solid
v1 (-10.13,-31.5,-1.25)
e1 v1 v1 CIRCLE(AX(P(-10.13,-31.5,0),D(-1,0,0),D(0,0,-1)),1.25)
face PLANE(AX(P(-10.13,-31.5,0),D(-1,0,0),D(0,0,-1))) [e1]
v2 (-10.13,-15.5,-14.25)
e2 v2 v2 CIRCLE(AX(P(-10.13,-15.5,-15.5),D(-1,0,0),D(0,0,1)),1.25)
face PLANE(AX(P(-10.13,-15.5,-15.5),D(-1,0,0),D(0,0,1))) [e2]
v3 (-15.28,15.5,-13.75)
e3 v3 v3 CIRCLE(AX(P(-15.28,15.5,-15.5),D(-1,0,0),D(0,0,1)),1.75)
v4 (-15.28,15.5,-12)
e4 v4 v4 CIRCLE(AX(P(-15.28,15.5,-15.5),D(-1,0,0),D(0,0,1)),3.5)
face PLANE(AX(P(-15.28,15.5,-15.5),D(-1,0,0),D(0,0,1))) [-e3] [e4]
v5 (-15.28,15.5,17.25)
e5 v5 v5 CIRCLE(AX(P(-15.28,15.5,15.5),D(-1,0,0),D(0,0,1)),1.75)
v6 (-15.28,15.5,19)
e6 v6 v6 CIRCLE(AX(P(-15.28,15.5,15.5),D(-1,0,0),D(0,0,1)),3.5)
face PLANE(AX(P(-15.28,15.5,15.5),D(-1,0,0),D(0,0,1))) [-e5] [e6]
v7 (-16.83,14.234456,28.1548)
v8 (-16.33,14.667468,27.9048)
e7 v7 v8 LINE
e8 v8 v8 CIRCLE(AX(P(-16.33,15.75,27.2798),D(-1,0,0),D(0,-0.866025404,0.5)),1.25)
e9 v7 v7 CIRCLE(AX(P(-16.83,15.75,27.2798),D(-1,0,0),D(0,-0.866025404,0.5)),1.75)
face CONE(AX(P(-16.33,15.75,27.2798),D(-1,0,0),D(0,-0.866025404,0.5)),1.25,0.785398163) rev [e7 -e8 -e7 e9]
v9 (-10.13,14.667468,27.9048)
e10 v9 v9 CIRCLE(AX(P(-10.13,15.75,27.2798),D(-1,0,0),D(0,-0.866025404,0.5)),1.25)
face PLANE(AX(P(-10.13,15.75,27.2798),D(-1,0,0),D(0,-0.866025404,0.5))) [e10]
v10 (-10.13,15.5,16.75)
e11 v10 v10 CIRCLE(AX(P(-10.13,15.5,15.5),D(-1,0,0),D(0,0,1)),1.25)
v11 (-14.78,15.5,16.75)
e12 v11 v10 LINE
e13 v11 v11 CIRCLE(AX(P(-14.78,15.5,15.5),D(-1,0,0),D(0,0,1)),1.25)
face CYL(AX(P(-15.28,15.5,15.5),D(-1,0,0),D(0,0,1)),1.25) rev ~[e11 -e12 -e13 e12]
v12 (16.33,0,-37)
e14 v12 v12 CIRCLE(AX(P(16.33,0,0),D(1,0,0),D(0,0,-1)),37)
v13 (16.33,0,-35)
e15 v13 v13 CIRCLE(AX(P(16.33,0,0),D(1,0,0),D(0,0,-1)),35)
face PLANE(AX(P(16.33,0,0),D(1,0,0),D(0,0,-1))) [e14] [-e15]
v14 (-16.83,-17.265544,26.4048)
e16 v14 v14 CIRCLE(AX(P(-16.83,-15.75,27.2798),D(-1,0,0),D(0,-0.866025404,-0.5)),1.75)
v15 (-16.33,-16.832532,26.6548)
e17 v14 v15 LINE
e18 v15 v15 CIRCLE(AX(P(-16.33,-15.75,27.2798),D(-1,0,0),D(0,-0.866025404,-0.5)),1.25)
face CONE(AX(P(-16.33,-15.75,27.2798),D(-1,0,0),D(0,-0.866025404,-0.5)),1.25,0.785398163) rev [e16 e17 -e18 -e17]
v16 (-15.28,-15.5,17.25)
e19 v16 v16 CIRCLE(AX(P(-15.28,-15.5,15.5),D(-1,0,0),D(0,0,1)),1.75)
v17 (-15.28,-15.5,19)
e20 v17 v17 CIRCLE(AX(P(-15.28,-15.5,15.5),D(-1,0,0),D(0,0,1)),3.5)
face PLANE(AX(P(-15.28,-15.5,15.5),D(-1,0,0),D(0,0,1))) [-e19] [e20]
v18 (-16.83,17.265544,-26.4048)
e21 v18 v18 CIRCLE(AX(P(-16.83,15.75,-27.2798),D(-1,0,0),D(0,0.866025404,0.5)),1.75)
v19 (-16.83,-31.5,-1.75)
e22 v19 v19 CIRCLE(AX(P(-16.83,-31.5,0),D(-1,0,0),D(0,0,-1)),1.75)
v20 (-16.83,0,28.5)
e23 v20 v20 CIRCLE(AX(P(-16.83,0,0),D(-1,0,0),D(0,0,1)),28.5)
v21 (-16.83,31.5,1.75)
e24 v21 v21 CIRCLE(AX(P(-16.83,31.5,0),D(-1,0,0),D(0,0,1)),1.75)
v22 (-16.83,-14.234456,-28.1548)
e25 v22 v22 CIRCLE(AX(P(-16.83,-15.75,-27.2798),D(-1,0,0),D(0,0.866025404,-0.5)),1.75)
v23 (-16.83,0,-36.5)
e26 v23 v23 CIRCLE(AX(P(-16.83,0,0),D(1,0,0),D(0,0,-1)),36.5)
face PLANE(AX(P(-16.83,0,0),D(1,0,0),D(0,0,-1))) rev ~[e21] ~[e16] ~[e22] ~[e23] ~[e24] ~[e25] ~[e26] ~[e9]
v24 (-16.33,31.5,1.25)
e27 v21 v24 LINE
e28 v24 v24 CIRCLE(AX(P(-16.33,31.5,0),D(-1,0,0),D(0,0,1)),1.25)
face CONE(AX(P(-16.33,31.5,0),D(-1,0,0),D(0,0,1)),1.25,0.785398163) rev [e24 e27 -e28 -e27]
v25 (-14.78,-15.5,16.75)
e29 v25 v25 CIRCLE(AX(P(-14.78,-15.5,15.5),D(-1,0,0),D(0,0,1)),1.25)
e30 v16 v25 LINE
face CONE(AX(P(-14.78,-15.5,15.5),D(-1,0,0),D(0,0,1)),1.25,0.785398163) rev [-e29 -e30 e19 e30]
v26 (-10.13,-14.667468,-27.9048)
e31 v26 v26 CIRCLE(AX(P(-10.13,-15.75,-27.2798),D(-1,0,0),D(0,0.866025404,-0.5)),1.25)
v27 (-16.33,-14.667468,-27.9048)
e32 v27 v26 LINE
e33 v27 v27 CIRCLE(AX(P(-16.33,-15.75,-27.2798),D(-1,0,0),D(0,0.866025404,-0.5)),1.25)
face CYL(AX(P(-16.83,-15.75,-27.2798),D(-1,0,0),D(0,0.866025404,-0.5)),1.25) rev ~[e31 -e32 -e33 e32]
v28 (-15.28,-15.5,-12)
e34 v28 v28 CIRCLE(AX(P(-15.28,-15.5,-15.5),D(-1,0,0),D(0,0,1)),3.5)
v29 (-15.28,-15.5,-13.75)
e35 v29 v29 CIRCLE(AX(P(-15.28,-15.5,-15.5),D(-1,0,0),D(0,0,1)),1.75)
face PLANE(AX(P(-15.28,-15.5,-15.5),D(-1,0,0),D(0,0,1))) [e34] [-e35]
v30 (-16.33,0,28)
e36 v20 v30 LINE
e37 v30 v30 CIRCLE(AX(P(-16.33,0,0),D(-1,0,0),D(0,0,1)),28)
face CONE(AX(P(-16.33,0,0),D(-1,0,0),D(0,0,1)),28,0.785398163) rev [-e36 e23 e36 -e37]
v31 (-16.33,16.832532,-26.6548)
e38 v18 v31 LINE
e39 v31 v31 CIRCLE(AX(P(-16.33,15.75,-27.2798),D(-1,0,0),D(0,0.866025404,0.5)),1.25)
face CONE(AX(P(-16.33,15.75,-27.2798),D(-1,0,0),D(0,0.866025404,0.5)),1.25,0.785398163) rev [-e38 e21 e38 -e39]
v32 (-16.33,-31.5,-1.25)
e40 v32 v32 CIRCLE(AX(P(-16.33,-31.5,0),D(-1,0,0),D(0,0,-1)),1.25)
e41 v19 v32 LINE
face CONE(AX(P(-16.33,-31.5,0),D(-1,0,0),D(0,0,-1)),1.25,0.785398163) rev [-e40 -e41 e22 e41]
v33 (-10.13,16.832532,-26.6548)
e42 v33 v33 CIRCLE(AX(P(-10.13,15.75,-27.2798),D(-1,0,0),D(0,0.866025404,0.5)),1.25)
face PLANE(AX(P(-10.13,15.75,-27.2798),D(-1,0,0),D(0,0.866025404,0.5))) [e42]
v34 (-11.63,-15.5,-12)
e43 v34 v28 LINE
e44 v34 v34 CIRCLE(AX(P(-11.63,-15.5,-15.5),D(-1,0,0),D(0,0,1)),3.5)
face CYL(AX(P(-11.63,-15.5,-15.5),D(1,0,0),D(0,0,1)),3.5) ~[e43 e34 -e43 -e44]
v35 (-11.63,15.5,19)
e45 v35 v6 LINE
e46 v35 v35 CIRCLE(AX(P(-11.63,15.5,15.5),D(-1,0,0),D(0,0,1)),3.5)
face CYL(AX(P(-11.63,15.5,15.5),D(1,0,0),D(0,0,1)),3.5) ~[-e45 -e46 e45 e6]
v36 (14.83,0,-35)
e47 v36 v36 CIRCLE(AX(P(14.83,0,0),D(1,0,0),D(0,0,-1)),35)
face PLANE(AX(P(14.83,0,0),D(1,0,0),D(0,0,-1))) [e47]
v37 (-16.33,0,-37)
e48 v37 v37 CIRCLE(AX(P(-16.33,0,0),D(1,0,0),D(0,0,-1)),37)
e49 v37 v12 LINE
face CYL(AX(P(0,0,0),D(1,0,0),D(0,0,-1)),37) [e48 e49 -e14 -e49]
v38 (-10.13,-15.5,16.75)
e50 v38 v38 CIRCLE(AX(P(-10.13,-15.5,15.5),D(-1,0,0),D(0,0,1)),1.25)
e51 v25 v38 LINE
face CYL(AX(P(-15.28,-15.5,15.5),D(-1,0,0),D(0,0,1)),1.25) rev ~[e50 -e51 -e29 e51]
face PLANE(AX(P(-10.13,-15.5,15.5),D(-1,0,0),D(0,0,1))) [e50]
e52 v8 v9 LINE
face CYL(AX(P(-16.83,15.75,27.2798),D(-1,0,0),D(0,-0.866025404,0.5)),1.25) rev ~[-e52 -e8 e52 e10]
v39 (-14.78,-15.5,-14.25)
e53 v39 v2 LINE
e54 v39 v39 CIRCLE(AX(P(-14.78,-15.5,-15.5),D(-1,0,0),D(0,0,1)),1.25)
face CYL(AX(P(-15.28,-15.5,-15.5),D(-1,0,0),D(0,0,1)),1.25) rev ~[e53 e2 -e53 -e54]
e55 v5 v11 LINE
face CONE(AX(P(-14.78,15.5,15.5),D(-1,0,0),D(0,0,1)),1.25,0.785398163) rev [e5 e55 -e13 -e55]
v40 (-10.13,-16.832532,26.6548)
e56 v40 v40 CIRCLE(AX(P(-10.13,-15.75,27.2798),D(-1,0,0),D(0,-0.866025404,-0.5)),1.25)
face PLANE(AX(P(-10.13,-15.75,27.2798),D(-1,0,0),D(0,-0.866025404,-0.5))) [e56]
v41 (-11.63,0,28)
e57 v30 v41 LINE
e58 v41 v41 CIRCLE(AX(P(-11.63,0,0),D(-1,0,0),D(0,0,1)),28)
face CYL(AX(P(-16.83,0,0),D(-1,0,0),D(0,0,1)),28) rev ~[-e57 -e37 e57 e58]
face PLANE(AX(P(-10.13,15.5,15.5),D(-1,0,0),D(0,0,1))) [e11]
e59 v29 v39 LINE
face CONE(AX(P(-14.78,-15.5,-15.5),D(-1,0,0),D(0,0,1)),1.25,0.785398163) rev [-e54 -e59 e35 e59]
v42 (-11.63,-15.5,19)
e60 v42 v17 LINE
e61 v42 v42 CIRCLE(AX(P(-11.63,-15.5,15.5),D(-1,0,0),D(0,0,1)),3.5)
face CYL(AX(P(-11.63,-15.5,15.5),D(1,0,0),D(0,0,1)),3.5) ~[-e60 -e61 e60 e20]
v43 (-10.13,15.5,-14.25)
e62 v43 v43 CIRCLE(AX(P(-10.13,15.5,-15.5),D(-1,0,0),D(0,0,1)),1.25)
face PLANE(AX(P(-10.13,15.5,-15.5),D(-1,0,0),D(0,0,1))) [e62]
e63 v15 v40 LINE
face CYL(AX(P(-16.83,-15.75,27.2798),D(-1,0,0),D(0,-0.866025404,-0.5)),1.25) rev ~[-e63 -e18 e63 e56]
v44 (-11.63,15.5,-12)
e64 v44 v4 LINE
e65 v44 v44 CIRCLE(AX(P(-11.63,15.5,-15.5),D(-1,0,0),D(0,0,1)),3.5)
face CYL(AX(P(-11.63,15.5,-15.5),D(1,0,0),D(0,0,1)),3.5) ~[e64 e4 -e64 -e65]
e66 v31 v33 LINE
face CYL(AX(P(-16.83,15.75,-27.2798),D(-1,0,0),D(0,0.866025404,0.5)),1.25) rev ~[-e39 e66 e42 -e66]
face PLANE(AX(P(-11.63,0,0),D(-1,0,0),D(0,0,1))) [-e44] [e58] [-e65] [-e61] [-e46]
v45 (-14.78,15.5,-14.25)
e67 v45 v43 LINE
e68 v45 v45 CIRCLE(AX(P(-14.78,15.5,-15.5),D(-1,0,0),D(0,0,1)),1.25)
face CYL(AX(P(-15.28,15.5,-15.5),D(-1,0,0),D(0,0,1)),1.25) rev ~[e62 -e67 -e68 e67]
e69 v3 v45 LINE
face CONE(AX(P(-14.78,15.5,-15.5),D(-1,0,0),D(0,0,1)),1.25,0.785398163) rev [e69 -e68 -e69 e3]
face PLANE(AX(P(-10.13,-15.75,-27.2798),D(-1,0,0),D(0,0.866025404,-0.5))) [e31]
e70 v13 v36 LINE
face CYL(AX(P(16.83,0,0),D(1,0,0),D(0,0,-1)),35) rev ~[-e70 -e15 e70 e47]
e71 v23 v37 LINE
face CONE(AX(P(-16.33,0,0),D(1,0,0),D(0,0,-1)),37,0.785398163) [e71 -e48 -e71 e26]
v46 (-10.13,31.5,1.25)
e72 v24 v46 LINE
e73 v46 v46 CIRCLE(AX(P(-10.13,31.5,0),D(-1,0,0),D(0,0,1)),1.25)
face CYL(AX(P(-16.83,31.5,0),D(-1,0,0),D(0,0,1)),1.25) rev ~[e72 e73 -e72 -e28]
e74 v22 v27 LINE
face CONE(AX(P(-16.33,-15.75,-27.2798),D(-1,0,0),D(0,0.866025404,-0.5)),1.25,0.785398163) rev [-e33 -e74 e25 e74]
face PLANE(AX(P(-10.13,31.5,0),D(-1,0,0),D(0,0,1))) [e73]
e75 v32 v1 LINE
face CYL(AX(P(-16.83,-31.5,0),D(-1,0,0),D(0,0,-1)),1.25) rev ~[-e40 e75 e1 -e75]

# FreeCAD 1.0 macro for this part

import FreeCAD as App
import Part
import Sketcher


def edges_at(feature, points):
    """Names of the edges that pass closest to the given points."""
    edges = feature.Shape.Edges
    near = lambda p: min(range(len(edges)), key=lambda i: edges[i].distToShape(Part.Vertex(*p))[0])
    return sorted({f"Edge{near(p) + 1}" for p in points})

doc = App.newDocument("Part")
body = doc.addObject("PartDesign::Body", "Body")

# Sketch on YZ plane
sketch1 = body.newObject("Sketcher::SketchObject", "Sketch")
sketch1.AttachmentSupport = (doc.getObject("YZ_Plane"), [""])
sketch1.MapMode = "FlatFace"
sketch1.addGeometry(Part.Circle(App.Vector(0, 0, 0), App.Vector(0, 0, 1), 37), False)
sketch1.addConstraint([
    Sketcher.Constraint("Coincident", 0, 3, -1, 1),
    Sketcher.Constraint("Diameter", 0, 74.0),
])
pad1 = body.newObject("PartDesign::Pad", "Pad")
pad1.Profile = sketch1
pad1.Length = 33.66
pad1.Midplane = True

# Sketch on YZ plane
sketch2 = body.newObject("Sketcher::SketchObject", "Sketch001")
sketch2.AttachmentSupport = (doc.getObject("YZ_Plane"), [""])
sketch2.MapMode = "FlatFace"
sketch2.AttachmentOffset = App.Placement(App.Vector(0, 0, -16.83), App.Rotation())
sketch2.addGeometry(Part.Circle(App.Vector(31.5, 0, 0), App.Vector(0, 0, 1), 1.2), False)
sketch2.addConstraint([
    Sketcher.Constraint("PointOnObject", 0, 3, -1),
    Sketcher.Constraint("Diameter", 0, 2.5),
    Sketcher.Constraint("DistanceX", -1, 1, 0, 3, 31.5),
])
pocket1 = body.newObject("PartDesign::Pocket", "Pocket")
pocket1.Profile = sketch2
pocket1.Length = 6.7
pocket1.Reversed = True
doc.recompute()

chamfer = body.newObject("PartDesign::Chamfer", "Chamfer")
chamfer.Base = (pocket1, edges_at(pocket1, [(-16.83, 31.5, -1.25)]))
chamfer.Size = 0.5
doc.recompute()

polarpattern = body.newObject("PartDesign::PolarPattern", "PolarPattern")
polarpattern.Originals = [pocket1]
polarpattern.Axis = (doc.getObject("X_Axis"), [""])
polarpattern.Angle = 360
polarpattern.Occurrences = 6
body.Tip = polarpattern
doc.recompute()

chamfer2 = body.newObject("PartDesign::Chamfer", "Chamfer001")
chamfer2.Base = (polarpattern, edges_at(polarpattern, [
    (-16.83, 16.833, 26.655),
    (-16.83, -14.667, 27.905),
    (-16.83, -31.5, 1.25),
    (-16.83, -16.833, -26.655),
    (-16.83, 14.667, -27.905),
]))
chamfer2.Size = 0.5

# Sketch on YZ plane
sketch3 = body.newObject("Sketcher::SketchObject", "Sketch002")
sketch3.AttachmentSupport = (doc.getObject("YZ_Plane"), [""])
sketch3.MapMode = "FlatFace"
sketch3.AttachmentOffset = App.Placement(App.Vector(0, 0, -16.83), App.Rotation())
sketch3.addGeometry(Part.Circle(App.Vector(0, 0, 0), App.Vector(0, 0, 1), 28), False)
sketch3.addConstraint([
    Sketcher.Constraint("Coincident", 0, 3, -1, 1),
    Sketcher.Constraint("Diameter", 0, 56.0),
])
pocket2 = body.newObject("PartDesign::Pocket", "Pocket001")
pocket2.Profile = sketch3
pocket2.Length = 5.2
pocket2.Reversed = True

# Sketch on YZ plane
sketch4 = body.newObject("Sketcher::SketchObject", "Sketch003")
sketch4.AttachmentSupport = (doc.getObject("YZ_Plane"), [""])
sketch4.MapMode = "FlatFace"
sketch4.AttachmentOffset = App.Placement(App.Vector(0, 0, -11.63), App.Rotation())
sketch4.addGeometry([
    Part.Circle(App.Vector(15.5, 15.5, 0), App.Vector(0, 0, 1), 3.5),
    Part.Circle(App.Vector(15.5, -15.5, 0), App.Vector(0, 0, 1), 3.5),
    Part.Circle(App.Vector(-15.5, -15.5, 0), App.Vector(0, 0, 1), 3.5),
    Part.Circle(App.Vector(-15.5, 15.5, 0), App.Vector(0, 0, 1), 3.5),
], False)
sketch4.addConstraint([
    Sketcher.Constraint("Equal", 0, 1),
    Sketcher.Constraint("Equal", 1, 2),
    Sketcher.Constraint("Equal", 2, 3),
    Sketcher.Constraint("Symmetric", 0, 3, 2, 3, -1, 1),
    Sketcher.Constraint("Symmetric", 1, 3, 3, 3, -1, 1),
    Sketcher.Constraint("Symmetric", 1, 3, 2, 3, -2),
    Sketcher.Constraint("Diameter", 0, 7.0),
    Sketcher.Constraint("DistanceY", 1, 3, 0, 3, 31.0),
    Sketcher.Constraint("DistanceX", 2, 3, 1, 3, 31.0),
])
pad2 = body.newObject("PartDesign::Pad", "Pad001")
pad2.Profile = sketch4
pad2.Length = 3.65
pad2.Reversed = True

# Sketch on YZ plane
sketch5 = body.newObject("Sketcher::SketchObject", "Sketch004")
sketch5.AttachmentSupport = (doc.getObject("YZ_Plane"), [""])
sketch5.MapMode = "FlatFace"
sketch5.AttachmentOffset = App.Placement(App.Vector(0, 0, -15.28), App.Rotation())
sketch5.addGeometry([
    Part.Circle(App.Vector(15.5, -15.5, 0), App.Vector(0, 0, 1), 1.2),
    Part.Circle(App.Vector(15.5, 15.5, 0), App.Vector(0, 0, 1), 1.2),
    Part.Circle(App.Vector(-15.5, 15.5, 0), App.Vector(0, 0, 1), 1.2),
    Part.Circle(App.Vector(-15.5, -15.5, 0), App.Vector(0, 0, 1), 1.2),
], False)
sketch5.addConstraint([
    Sketcher.Constraint("Equal", 0, 1),
    Sketcher.Constraint("Equal", 1, 2),
    Sketcher.Constraint("Equal", 2, 3),
    Sketcher.Constraint("Symmetric", 0, 3, 2, 3, -1, 1),
    Sketcher.Constraint("Symmetric", 1, 3, 3, 3, -1, 1),
    Sketcher.Constraint("Symmetric", 1, 3, 2, 3, -2),
    Sketcher.Constraint("Diameter", 0, 2.5),
    Sketcher.Constraint("DistanceY", 0, 3, 1, 3, 31.0),
    Sketcher.Constraint("DistanceX", 2, 3, 1, 3, 31.0),
])
pocket3 = body.newObject("PartDesign::Pocket", "Pocket002")
pocket3.Profile = sketch5
pocket3.Length = 5.15
pocket3.Reversed = True
doc.recompute()

chamfer3 = body.newObject("PartDesign::Chamfer", "Chamfer002")
chamfer3.Base = (pocket3, edges_at(pocket3, [(-16.83, 0, 37), (-16.83, 0, -28)]))
chamfer3.Size = 0.5
doc.recompute()

chamfer4 = body.newObject("PartDesign::Chamfer", "Chamfer003")
chamfer4.Base = (chamfer3, edges_at(chamfer3, [
    (-15.28, -15.5, -16.75),
    (-15.28, -15.5, 14.25),
    (-15.28, 15.5, 14.25),
    (-15.28, 15.5, -16.75),
]))
chamfer4.Size = 0.5

# Sketch on YZ plane
sketch6 = body.newObject("Sketcher::SketchObject", "Sketch005")
sketch6.AttachmentSupport = (doc.getObject("YZ_Plane"), [""])
sketch6.MapMode = "FlatFace"
sketch6.AttachmentOffset = App.Placement(App.Vector(0, 0, 16.83), App.Rotation())
sketch6.addGeometry(Part.Circle(App.Vector(0, 0, 0), App.Vector(0, 0, 1), 35), False)
sketch6.addConstraint([
    Sketcher.Constraint("Coincident", 0, 3, -1, 1),
    Sketcher.Constraint("Diameter", 0, 70.0),
])
pocket4 = body.newObject("PartDesign::Pocket", "Pocket003")
pocket4.Profile = sketch6
pocket4.Length = 2

# Sketch on YZ plane
sketch7 = body.newObject("Sketcher::SketchObject", "Sketch006")
sketch7.AttachmentSupport = (doc.getObject("YZ_Plane"), [""])
sketch7.MapMode = "FlatFace"
sketch7.AttachmentOffset = App.Placement(App.Vector(0, 0, 16.83), App.Rotation())
sketch7.addGeometry([
    Part.Circle(App.Vector(0, 0, 0), App.Vector(0, 0, 1), 37),
    Part.Circle(App.Vector(0, 0, 0), App.Vector(0, 0, 1), 35),
], False)
sketch7.addConstraint([
    Sketcher.Constraint("Coincident", 0, 3, -1, 1),
    Sketcher.Constraint("Coincident", 1, 3, -1, 1),
    Sketcher.Constraint("Diameter", 0, 74.0),
    Sketcher.Constraint("Diameter", 1, 70.0),
])
pocket5 = body.newObject("PartDesign::Pocket", "Pocket004")
pocket5.Profile = sketch7
pocket5.Length = 0.5

doc.recompute()
